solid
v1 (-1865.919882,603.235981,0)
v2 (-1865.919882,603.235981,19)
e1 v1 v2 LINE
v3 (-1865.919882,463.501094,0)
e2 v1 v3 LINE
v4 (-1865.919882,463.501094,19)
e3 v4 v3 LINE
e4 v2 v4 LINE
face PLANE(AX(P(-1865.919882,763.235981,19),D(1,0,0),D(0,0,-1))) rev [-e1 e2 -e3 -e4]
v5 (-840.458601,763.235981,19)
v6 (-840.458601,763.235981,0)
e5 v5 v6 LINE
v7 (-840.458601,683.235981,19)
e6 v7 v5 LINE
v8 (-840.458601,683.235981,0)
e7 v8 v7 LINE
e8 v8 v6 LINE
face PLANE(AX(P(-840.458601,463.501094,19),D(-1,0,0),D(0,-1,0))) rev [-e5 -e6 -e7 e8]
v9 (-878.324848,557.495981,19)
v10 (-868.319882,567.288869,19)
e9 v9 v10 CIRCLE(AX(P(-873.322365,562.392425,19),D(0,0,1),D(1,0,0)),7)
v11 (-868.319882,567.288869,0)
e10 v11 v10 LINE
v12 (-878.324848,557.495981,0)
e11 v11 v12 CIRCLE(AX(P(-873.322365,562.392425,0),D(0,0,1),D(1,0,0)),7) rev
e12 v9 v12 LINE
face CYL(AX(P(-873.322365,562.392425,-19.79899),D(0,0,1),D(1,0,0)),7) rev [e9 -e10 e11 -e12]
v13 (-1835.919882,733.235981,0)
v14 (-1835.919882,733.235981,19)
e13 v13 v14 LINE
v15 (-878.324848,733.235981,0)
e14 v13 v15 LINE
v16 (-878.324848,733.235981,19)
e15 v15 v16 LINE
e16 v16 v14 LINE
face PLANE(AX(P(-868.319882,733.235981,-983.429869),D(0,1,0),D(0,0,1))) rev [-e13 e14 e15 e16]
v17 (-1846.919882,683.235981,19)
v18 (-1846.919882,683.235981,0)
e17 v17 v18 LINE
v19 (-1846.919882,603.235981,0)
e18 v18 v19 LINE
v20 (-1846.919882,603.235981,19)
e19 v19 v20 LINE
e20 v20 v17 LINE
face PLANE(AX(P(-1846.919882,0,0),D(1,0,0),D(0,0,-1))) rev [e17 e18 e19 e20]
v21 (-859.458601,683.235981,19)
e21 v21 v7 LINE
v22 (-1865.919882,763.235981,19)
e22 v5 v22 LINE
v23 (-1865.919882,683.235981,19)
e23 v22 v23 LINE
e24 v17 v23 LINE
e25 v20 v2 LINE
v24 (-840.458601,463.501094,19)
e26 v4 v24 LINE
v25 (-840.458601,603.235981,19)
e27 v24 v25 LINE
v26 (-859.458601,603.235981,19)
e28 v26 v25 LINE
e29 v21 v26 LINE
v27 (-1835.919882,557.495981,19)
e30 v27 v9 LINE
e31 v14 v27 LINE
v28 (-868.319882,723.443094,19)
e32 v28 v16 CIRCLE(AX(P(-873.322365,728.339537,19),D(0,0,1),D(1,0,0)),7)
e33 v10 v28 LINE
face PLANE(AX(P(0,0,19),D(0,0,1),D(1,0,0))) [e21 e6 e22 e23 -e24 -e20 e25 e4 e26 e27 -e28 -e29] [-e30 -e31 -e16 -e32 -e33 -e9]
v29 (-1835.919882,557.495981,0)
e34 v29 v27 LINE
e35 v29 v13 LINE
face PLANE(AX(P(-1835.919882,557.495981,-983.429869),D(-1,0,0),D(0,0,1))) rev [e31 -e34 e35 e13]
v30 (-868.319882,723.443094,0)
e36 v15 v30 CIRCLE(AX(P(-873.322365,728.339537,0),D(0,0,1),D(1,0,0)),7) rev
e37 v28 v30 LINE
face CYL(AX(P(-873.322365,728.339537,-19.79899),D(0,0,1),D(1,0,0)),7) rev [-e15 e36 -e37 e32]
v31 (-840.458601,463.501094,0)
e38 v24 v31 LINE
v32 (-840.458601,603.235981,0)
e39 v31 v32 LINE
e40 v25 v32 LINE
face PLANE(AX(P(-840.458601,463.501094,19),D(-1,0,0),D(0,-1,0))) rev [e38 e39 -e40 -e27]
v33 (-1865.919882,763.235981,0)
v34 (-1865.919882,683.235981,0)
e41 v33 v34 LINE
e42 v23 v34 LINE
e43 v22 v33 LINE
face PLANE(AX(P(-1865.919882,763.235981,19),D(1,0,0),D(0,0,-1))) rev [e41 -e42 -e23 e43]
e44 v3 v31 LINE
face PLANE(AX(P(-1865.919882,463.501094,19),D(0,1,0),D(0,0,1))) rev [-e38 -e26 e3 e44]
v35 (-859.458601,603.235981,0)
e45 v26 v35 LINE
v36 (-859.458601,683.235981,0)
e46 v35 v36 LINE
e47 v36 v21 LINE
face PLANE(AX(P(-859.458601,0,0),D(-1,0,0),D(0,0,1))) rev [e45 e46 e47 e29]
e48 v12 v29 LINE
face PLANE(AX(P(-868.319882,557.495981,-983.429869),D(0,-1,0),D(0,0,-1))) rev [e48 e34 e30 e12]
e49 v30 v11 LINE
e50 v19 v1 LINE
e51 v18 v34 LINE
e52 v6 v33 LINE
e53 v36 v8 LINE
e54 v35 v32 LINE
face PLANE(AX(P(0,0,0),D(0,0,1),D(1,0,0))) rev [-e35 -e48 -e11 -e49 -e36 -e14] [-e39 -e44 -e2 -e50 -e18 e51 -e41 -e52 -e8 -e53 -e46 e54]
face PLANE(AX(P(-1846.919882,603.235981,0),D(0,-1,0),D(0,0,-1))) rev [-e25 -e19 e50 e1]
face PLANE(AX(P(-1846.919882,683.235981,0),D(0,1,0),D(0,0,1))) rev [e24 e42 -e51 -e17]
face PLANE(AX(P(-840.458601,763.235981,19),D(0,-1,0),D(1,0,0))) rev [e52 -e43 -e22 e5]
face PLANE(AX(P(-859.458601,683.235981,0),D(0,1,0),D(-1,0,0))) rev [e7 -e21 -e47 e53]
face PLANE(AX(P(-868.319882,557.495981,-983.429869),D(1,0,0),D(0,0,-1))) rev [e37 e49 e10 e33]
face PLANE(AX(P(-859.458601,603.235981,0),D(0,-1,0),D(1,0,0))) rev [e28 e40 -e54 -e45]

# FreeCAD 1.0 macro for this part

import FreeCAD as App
import Part
import Sketcher
from FreeCAD import Vector
Q = App.Units.Quantity


def add_polygon(sketch, points):
    """Adds a closed chain of lines whose ends are joined by coincident constraints."""
    first, n = sketch.GeometryCount, len(points)
    for a, b in zip(points, points[1:] + points[:1]):
        sketch.addGeometry(Part.LineSegment(App.Vector(*a, 0), App.Vector(*b, 0)), False)
    for i in range(n):
        sketch.addConstraint(Sketcher.Constraint("Coincident", first + i, 2, first + (i + 1) % n, 1))

doc = App.newDocument("Part")
params = doc.addObject("Spreadsheet::Sheet", "Params")
for row, (alias, value) in enumerate([
    ("pad1_length", "19 mm"),
    ("sketch2_width", "967.6 mm"),
    ("sketch2_height", "175.74 mm"),
    ("pocket1_length", "19 mm"),
    ("sketch3_diameter", "14 mm"),
    ("pocket2_length", "19 mm"),
    ("sketch4_width", "80 mm"),
    ("sketch4_height", "19 mm"),
    ("pocket3_length", "19 mm"),
    ("sketch5_width", "80 mm"),
    ("sketch5_height", "19 mm"),
    ("pocket4_length", "19 mm"),
], start=1):
    params.set(f"A{row}", alias)
    params.set(f"B{row}", "=" + value)
    params.setAlias(f"B{row}", alias)

body = doc.addObject("PartDesign::Body", "Body")

sketch1 = body.newObject("Sketcher::SketchObject", "Sketch")
sketch1.AttachmentSupport = (doc.getObject("XY_Plane"), [""])
sketch1.MapMode = "FlatFace"
add_polygon(sketch1, [(-1866, 763), (-1866, 464), (-840, 464), (-840, 763)])
sketch1.addConstraint([
    Sketcher.Constraint("Vertical", 0),
    Sketcher.Constraint("Horizontal", 1),
    Sketcher.Constraint("Vertical", 2),
    Sketcher.Constraint("Horizontal", 3),
    Sketcher.Constraint("DistanceX", 1, 1, 1, 2, Q("1025.46128 mm")),
    Sketcher.Constraint("DistanceX", 1, 2, -1, 1, Q("840.458601 mm")),
    Sketcher.Constraint("DistanceY", 0, 2, 0, 1, Q("299.734888 mm")),
    Sketcher.Constraint("DistanceY", -1, 1, 2, 2, Q("763.235981 mm")),
])
pad1 = body.newObject("PartDesign::Pad", "Pad")
pad1.Profile = sketch1
pad1.setExpression("Length", "Params.pad1_length")

sketch2 = body.newObject("Sketcher::SketchObject", "Sketch001")
sketch2.AttachmentSupport = (doc.getObject("XY_Plane"), [""])
sketch2.MapMode = "FlatFace"
sketch2.AttachmentOffset = App.Placement(Vector(0, 0, 19), App.Rotation())
add_polygon(sketch2, [(-1836, 733), (-1836, 557), (-868, 557), (-868, 733)])
sketch2.addConstraint([
    Sketcher.Constraint("Vertical", 0),
    Sketcher.Constraint("Horizontal", 1),
    Sketcher.Constraint("Vertical", 2),
    Sketcher.Constraint("Horizontal", 3),
    Sketcher.Constraint("DistanceX", 1, 1, 1, 2, Q("967.6 mm")),
    Sketcher.Constraint("DistanceY", 0, 2, 0, 1, Q("175.74 mm")),
    Sketcher.Constraint("DistanceX", 0, 2, -1, 1, Q("1835.919882 mm")),
    Sketcher.Constraint("DistanceY", -1, 1, 0, 2, Q("557.495981 mm")),
])
sketch2.setExpression("Constraints[8]", "Params.sketch2_width")
sketch2.setExpression("Constraints[9]", "Params.sketch2_height")
pocket1 = body.newObject("PartDesign::Pocket", "Pocket")
pocket1.Profile = sketch2
pocket1.setExpression("Length", "Params.pocket1_length")

sketch3 = body.newObject("Sketcher::SketchObject", "Sketch002")
sketch3.AttachmentSupport = (doc.getObject("XY_Plane"), [""])
sketch3.MapMode = "FlatFace"
sketch3.AttachmentOffset = App.Placement(Vector(0, 0, 19), App.Rotation())
sketch3.addGeometry([
    Part.Circle(Vector(-873, 728, 0), Vector(0, 0, 1), 7),
    Part.Circle(Vector(-873, 562, 0), Vector(0, 0, 1), 7),
], False)
sketch3.addConstraint([
    Sketcher.Constraint("Equal", 0, 1),
    Sketcher.Constraint("Vertical", 0, 3, 1, 3),
    Sketcher.Constraint("Diameter", 0, Q("14 mm")),
    Sketcher.Constraint("DistanceX", 0, 3, -1, 1, Q("873.322365 mm")),
    Sketcher.Constraint("DistanceY", -1, 1, 0, 3, Q("728.339537 mm")),
    Sketcher.Constraint("DistanceY", -1, 1, 1, 3, Q("562.392425 mm")),
])
sketch3.setExpression("Constraints[2]", "Params.sketch3_diameter")
pocket2 = body.newObject("PartDesign::Pocket", "Pocket001")
pocket2.Profile = sketch3
pocket2.setExpression("Length", "Params.pocket2_length")

sketch4 = body.newObject("Sketcher::SketchObject", "Sketch003")
sketch4.AttachmentSupport = (doc.getObject("YZ_Plane"), [""])
sketch4.MapMode = "FlatFace"
sketch4.AttachmentOffset = App.Placement(Vector(0, 0, -840.458601), App.Rotation())
add_polygon(sketch4, [(683, 19), (603, 19), (603, 0), (683, 0)])
sketch4.addConstraint([
    Sketcher.Constraint("Horizontal", 0),
    Sketcher.Constraint("Vertical", 1),
    Sketcher.Constraint("Horizontal", 2),
    Sketcher.Constraint("Vertical", 3),
    Sketcher.Constraint("PointOnObject", 1, 2, -1),
    Sketcher.Constraint("DistanceX", 0, 2, 0, 1, Q("80 mm")),
    Sketcher.Constraint("DistanceY", 1, 2, 1, 1, Q("19 mm")),
    Sketcher.Constraint("DistanceX", -1, 1, 0, 2, Q("603.235981 mm")),
])
sketch4.setExpression("Constraints[9]", "Params.sketch4_width")
sketch4.setExpression("Constraints[10]", "Params.sketch4_height")
pocket3 = body.newObject("PartDesign::Pocket", "Pocket002")
pocket3.Profile = sketch4
pocket3.setExpression("Length", "Params.pocket3_length")

sketch5 = body.newObject("Sketcher::SketchObject", "Sketch004")
sketch5.AttachmentSupport = (doc.getObject("YZ_Plane"), [""])
sketch5.MapMode = "FlatFace"
sketch5.AttachmentOffset = App.Placement(Vector(0, 0, -1865.919882), App.Rotation())
add_polygon(sketch5, [(683, 0), (603, 0), (603, 19), (683, 19)])
sketch5.addConstraint([
    Sketcher.Constraint("Horizontal", 0),
    Sketcher.Constraint("Vertical", 1),
    Sketcher.Constraint("Horizontal", 2),
    Sketcher.Constraint("Vertical", 3),
    Sketcher.Constraint("PointOnObject", 0, 2, -1),
    Sketcher.Constraint("DistanceX", 0, 2, 0, 1, Q("80 mm")),
    Sketcher.Constraint("DistanceY", 1, 1, 1, 2, Q("19 mm")),
    Sketcher.Constraint("DistanceX", -1, 1, 0, 2, Q("603.235981 mm")),
])
sketch5.setExpression("Constraints[9]", "Params.sketch5_width")
sketch5.setExpression("Constraints[10]", "Params.sketch5_height")
pocket4 = body.newObject("PartDesign::Pocket", "Pocket003")
pocket4.Profile = sketch5
pocket4.setExpression("Length", "Params.pocket4_length")
pocket4.Reversed = True

doc.recompute()
